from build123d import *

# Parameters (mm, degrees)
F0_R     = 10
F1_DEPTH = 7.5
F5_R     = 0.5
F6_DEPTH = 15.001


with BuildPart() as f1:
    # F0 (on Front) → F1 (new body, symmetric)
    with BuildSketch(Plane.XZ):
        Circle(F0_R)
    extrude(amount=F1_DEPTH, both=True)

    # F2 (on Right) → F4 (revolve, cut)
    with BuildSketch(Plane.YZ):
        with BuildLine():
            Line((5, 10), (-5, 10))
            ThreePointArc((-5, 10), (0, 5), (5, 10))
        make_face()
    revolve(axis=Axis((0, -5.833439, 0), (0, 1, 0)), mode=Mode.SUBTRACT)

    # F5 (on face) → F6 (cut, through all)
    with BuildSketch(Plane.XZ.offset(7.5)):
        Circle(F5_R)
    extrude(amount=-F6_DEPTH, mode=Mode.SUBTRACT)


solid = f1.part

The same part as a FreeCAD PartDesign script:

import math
import FreeCAD as App
import Part
import Sketcher
Q = App.Units.Quantity

doc = App.newDocument("Part")
body = doc.addObject("PartDesign::Body", "Body")

# Sketch on XZ plane
sketch1 = body.newObject("Sketcher::SketchObject", "Sketch")
sketch1.AttachmentSupport = (doc.getObject("XZ_Plane"), [""])
sketch1.MapMode = "FlatFace"
sketch1.addGeometry(Part.Circle(App.Vector(0, 0, 0), App.Vector(0, 0, 1), 10), False)
sketch1.addConstraint([
    Sketcher.Constraint("Coincident", 0, 3, -1, 1),
    Sketcher.Constraint("Diameter", 0, Q("20 mm")),
])
pad1 = body.newObject("PartDesign::Pad", "Pad")
pad1.Profile = sketch1
pad1.Length = 15
pad1.Midplane = True

# Sketch on YZ plane
sketch2 = body.newObject("Sketcher::SketchObject", "Sketch001")
sketch2.AttachmentSupport = (doc.getObject("YZ_Plane"), [""])
sketch2.MapMode = "FlatFace"
sketch2.addGeometry([
    Part.LineSegment(App.Vector(5, 10, 0), App.Vector(-5, 10, 0)),
    Part.ArcOfCircle(Part.Circle(App.Vector(0, 10, 0), App.Vector(0, 0, 1), 5), math.radians(180), math.radians(360)),
], False)
sketch2.addConstraint([
    Sketcher.Constraint("Coincident", 0, 1, 1, 2),
    Sketcher.Constraint("Coincident", 1, 1, 0, 2),
    Sketcher.Constraint("Horizontal", 0),
    Sketcher.Constraint("PointOnObject", 1, 3, -2),
    Sketcher.Constraint("Horizontal", 1, 3, 0, 1),
    Sketcher.Constraint("Radius", 1, Q("5 mm")),
    Sketcher.Constraint("DistanceY", -1, 1, 1, 3, Q("10 mm")),
])
groove = body.newObject("PartDesign::Groove", "Groove")
groove.Profile = sketch2
groove.ReferenceAxis = (sketch2, ["H_Axis"])
groove.Angle = 360

# Sketch on XZ plane
sketch3 = body.newObject("Sketcher::SketchObject", "Sketch002")
sketch3.AttachmentSupport = (doc.getObject("XZ_Plane"), [""])
sketch3.MapMode = "FlatFace"
sketch3.AttachmentOffset = App.Placement(App.Vector(0, 0, 7.5), App.Rotation())
sketch3.addGeometry(Part.Circle(App.Vector(0, 0, 0), App.Vector(0, 0, 1), 0.5), False)
sketch3.addConstraint([
    Sketcher.Constraint("Coincident", 0, 3, -1, 1),
    Sketcher.Constraint("Diameter", 0, Q("1 mm")),
])
pocket1 = body.newObject("PartDesign::Pocket", "Pocket")
pocket1.Profile = sketch3
pocket1.Type = "ThroughAll"

doc.recompute()
